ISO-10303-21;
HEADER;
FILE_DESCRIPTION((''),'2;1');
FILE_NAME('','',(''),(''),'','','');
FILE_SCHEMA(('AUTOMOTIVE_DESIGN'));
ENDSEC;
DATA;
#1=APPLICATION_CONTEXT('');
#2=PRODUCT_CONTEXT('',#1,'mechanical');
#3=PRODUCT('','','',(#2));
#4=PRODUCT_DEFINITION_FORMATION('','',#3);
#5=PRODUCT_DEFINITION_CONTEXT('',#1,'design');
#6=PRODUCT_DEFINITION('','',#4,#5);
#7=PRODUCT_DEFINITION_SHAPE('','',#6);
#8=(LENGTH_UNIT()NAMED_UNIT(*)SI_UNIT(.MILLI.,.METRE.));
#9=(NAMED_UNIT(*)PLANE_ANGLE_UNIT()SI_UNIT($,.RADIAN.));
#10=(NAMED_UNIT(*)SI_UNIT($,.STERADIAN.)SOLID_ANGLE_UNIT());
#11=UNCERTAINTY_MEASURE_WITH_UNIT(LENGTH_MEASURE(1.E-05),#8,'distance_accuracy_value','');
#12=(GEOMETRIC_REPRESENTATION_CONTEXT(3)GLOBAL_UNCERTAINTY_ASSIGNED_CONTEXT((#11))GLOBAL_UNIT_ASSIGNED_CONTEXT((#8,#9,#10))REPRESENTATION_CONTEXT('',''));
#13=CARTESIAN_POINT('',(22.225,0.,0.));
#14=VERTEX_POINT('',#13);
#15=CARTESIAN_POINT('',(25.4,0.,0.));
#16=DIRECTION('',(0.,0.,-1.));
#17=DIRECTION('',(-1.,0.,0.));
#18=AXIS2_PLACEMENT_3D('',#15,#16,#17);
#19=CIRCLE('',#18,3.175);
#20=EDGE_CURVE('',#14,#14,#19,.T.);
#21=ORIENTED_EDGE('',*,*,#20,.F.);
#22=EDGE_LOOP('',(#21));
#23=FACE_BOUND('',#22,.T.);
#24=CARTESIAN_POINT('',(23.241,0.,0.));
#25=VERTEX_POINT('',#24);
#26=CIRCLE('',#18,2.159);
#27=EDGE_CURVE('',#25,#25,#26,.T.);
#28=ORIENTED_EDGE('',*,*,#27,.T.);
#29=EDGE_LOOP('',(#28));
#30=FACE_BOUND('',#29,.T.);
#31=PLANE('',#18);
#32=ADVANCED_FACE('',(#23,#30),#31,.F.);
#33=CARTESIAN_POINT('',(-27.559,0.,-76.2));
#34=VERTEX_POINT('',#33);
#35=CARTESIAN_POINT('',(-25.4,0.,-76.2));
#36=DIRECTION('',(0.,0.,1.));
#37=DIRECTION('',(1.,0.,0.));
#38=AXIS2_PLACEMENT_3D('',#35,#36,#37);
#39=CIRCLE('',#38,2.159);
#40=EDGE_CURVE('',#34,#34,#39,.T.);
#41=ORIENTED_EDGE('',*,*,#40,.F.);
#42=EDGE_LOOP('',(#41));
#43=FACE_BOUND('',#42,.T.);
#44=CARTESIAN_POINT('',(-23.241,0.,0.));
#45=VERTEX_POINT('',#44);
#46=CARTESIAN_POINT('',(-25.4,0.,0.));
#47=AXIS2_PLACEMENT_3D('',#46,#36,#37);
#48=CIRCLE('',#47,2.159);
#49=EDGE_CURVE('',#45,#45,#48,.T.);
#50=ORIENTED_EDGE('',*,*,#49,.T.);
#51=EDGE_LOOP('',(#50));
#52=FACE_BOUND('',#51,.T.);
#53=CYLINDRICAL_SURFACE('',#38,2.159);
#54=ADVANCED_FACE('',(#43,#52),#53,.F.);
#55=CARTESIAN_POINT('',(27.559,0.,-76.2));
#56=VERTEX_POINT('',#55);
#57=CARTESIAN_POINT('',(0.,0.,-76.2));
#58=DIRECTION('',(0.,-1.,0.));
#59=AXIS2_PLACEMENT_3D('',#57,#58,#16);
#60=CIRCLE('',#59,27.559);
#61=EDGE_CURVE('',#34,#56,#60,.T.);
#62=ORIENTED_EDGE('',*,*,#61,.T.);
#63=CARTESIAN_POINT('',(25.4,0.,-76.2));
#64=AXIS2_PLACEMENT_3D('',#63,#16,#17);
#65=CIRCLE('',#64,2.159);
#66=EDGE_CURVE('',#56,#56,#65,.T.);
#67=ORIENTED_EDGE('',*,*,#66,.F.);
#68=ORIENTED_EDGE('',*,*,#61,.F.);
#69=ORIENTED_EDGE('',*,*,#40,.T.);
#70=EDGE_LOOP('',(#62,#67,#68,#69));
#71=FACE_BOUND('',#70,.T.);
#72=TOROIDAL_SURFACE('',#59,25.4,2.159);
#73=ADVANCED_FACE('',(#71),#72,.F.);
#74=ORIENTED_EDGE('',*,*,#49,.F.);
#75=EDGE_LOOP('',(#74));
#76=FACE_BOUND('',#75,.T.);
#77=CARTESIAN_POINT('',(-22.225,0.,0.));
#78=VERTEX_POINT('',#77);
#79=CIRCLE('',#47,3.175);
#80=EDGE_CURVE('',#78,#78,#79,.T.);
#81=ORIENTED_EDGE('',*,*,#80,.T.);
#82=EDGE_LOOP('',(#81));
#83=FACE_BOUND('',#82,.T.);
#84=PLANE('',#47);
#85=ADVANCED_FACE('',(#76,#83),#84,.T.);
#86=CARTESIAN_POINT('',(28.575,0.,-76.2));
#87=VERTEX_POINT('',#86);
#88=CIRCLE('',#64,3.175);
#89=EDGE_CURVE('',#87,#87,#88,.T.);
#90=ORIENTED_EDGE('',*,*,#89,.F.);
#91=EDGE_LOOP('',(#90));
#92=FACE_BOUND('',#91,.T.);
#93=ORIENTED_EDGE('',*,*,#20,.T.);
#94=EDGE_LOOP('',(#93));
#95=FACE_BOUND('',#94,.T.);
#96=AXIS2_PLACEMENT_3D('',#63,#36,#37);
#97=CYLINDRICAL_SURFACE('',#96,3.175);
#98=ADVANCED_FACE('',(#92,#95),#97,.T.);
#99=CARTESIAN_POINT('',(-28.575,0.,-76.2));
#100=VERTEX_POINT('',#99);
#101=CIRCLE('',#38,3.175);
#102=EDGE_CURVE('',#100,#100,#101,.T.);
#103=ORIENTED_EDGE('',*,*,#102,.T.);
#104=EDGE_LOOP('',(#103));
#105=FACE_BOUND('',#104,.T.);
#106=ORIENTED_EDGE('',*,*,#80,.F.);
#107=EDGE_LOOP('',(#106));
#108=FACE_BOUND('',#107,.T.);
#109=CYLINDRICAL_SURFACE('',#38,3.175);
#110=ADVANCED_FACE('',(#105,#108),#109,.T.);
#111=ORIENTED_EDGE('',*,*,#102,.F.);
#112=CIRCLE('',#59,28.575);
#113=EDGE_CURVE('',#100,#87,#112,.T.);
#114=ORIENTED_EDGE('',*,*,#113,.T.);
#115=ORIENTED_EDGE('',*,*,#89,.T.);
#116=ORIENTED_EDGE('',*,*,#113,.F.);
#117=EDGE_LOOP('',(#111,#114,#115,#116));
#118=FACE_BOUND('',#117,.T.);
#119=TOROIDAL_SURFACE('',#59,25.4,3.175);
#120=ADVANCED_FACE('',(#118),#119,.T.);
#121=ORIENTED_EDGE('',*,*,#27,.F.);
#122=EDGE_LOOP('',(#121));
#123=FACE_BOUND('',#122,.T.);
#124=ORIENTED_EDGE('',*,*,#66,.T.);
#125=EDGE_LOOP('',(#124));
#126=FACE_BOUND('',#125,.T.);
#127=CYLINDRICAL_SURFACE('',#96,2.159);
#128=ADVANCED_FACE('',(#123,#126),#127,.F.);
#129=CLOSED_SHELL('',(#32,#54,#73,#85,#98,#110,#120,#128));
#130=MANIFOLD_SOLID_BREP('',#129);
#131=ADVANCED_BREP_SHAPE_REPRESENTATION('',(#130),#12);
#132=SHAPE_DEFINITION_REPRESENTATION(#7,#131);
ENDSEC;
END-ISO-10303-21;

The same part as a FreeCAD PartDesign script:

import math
import FreeCAD as App
import Part
import Sketcher
from FreeCAD import Vector
Q = App.Units.Quantity

doc = App.newDocument("Part")
body = doc.addObject("PartDesign::Body", "Body")

sketch1 = body.newObject("Sketcher::SketchObject", "Sketch")
sketch1.AttachmentSupport = (doc.getObject("XY_Plane"), [""])
sketch1.MapMode = "FlatFace"
sketch1.addGeometry(Part.Circle(Vector(-25.4, 0, 0), Vector(0, 0, 1), 3.2), False)
sketch1.addGeometry(Part.Circle(Vector(-25.4, 0, 0), Vector(0, 0, 1), 2.2), False)
sketch1.addConstraint(Sketcher.Constraint("Coincident", 1, 3, 0, 3))
sketch1.addConstraint(Sketcher.Constraint("PointOnObject", 0, 3, -1))
sketch1.addConstraint(Sketcher.Constraint("Diameter", 0, Q("0.25 in")))
sketch1.addConstraint(Sketcher.Constraint("Diameter", 1, Q("0.17 in")))
sketch1.addConstraint(Sketcher.Constraint("DistanceX", 0, 3, -1, 1, Q("1 in")))

sketch2 = body.newObject("Sketcher::SketchObject", "Sketch001")
sketch2.AttachmentSupport = (doc.getObject("XZ_Plane"), [""])
sketch2.MapMode = "FlatFace"
sketch2.addGeometry(Part.LineSegment(Vector(-25, 0, 0), Vector(-25, -76, 0)), False)
sketch2.addGeometry(Part.ArcOfCircle(Part.Circle(Vector(0, -76, 0), Vector(0, 0, 1), 25), math.radians(180), math.radians(360)), False)
sketch2.addGeometry(Part.LineSegment(Vector(25, -76, 0), Vector(25, 0, 0)), False)
sketch2.addConstraint(Sketcher.Constraint("Tangent", 0, 2, 1, 1))
sketch2.addConstraint(Sketcher.Constraint("Tangent", 1, 2, 2, 1))
sketch2.addConstraint(Sketcher.Constraint("Vertical", 0))
sketch2.addConstraint(Sketcher.Constraint("Vertical", 2))
sketch2.addConstraint(Sketcher.Constraint("Symmetric", 0, 1, 2, 2, -1, 1))
sketch2.addConstraint(Sketcher.Constraint("PointOnObject", 0, 1, -1))
sketch2.addConstraint(Sketcher.Constraint("Radius", 1, Q("1 in")))
sketch2.addConstraint(Sketcher.Constraint("DistanceY", 0, 2, 0, 1, Q("3 in")))
doc.recompute()

additivepipe = body.newObject("PartDesign::AdditivePipe", "AdditivePipe")
additivepipe.Profile = sketch1
additivepipe.Spine = (sketch2, ["Edge1", "Edge2", "Edge3"])

doc.recompute()
